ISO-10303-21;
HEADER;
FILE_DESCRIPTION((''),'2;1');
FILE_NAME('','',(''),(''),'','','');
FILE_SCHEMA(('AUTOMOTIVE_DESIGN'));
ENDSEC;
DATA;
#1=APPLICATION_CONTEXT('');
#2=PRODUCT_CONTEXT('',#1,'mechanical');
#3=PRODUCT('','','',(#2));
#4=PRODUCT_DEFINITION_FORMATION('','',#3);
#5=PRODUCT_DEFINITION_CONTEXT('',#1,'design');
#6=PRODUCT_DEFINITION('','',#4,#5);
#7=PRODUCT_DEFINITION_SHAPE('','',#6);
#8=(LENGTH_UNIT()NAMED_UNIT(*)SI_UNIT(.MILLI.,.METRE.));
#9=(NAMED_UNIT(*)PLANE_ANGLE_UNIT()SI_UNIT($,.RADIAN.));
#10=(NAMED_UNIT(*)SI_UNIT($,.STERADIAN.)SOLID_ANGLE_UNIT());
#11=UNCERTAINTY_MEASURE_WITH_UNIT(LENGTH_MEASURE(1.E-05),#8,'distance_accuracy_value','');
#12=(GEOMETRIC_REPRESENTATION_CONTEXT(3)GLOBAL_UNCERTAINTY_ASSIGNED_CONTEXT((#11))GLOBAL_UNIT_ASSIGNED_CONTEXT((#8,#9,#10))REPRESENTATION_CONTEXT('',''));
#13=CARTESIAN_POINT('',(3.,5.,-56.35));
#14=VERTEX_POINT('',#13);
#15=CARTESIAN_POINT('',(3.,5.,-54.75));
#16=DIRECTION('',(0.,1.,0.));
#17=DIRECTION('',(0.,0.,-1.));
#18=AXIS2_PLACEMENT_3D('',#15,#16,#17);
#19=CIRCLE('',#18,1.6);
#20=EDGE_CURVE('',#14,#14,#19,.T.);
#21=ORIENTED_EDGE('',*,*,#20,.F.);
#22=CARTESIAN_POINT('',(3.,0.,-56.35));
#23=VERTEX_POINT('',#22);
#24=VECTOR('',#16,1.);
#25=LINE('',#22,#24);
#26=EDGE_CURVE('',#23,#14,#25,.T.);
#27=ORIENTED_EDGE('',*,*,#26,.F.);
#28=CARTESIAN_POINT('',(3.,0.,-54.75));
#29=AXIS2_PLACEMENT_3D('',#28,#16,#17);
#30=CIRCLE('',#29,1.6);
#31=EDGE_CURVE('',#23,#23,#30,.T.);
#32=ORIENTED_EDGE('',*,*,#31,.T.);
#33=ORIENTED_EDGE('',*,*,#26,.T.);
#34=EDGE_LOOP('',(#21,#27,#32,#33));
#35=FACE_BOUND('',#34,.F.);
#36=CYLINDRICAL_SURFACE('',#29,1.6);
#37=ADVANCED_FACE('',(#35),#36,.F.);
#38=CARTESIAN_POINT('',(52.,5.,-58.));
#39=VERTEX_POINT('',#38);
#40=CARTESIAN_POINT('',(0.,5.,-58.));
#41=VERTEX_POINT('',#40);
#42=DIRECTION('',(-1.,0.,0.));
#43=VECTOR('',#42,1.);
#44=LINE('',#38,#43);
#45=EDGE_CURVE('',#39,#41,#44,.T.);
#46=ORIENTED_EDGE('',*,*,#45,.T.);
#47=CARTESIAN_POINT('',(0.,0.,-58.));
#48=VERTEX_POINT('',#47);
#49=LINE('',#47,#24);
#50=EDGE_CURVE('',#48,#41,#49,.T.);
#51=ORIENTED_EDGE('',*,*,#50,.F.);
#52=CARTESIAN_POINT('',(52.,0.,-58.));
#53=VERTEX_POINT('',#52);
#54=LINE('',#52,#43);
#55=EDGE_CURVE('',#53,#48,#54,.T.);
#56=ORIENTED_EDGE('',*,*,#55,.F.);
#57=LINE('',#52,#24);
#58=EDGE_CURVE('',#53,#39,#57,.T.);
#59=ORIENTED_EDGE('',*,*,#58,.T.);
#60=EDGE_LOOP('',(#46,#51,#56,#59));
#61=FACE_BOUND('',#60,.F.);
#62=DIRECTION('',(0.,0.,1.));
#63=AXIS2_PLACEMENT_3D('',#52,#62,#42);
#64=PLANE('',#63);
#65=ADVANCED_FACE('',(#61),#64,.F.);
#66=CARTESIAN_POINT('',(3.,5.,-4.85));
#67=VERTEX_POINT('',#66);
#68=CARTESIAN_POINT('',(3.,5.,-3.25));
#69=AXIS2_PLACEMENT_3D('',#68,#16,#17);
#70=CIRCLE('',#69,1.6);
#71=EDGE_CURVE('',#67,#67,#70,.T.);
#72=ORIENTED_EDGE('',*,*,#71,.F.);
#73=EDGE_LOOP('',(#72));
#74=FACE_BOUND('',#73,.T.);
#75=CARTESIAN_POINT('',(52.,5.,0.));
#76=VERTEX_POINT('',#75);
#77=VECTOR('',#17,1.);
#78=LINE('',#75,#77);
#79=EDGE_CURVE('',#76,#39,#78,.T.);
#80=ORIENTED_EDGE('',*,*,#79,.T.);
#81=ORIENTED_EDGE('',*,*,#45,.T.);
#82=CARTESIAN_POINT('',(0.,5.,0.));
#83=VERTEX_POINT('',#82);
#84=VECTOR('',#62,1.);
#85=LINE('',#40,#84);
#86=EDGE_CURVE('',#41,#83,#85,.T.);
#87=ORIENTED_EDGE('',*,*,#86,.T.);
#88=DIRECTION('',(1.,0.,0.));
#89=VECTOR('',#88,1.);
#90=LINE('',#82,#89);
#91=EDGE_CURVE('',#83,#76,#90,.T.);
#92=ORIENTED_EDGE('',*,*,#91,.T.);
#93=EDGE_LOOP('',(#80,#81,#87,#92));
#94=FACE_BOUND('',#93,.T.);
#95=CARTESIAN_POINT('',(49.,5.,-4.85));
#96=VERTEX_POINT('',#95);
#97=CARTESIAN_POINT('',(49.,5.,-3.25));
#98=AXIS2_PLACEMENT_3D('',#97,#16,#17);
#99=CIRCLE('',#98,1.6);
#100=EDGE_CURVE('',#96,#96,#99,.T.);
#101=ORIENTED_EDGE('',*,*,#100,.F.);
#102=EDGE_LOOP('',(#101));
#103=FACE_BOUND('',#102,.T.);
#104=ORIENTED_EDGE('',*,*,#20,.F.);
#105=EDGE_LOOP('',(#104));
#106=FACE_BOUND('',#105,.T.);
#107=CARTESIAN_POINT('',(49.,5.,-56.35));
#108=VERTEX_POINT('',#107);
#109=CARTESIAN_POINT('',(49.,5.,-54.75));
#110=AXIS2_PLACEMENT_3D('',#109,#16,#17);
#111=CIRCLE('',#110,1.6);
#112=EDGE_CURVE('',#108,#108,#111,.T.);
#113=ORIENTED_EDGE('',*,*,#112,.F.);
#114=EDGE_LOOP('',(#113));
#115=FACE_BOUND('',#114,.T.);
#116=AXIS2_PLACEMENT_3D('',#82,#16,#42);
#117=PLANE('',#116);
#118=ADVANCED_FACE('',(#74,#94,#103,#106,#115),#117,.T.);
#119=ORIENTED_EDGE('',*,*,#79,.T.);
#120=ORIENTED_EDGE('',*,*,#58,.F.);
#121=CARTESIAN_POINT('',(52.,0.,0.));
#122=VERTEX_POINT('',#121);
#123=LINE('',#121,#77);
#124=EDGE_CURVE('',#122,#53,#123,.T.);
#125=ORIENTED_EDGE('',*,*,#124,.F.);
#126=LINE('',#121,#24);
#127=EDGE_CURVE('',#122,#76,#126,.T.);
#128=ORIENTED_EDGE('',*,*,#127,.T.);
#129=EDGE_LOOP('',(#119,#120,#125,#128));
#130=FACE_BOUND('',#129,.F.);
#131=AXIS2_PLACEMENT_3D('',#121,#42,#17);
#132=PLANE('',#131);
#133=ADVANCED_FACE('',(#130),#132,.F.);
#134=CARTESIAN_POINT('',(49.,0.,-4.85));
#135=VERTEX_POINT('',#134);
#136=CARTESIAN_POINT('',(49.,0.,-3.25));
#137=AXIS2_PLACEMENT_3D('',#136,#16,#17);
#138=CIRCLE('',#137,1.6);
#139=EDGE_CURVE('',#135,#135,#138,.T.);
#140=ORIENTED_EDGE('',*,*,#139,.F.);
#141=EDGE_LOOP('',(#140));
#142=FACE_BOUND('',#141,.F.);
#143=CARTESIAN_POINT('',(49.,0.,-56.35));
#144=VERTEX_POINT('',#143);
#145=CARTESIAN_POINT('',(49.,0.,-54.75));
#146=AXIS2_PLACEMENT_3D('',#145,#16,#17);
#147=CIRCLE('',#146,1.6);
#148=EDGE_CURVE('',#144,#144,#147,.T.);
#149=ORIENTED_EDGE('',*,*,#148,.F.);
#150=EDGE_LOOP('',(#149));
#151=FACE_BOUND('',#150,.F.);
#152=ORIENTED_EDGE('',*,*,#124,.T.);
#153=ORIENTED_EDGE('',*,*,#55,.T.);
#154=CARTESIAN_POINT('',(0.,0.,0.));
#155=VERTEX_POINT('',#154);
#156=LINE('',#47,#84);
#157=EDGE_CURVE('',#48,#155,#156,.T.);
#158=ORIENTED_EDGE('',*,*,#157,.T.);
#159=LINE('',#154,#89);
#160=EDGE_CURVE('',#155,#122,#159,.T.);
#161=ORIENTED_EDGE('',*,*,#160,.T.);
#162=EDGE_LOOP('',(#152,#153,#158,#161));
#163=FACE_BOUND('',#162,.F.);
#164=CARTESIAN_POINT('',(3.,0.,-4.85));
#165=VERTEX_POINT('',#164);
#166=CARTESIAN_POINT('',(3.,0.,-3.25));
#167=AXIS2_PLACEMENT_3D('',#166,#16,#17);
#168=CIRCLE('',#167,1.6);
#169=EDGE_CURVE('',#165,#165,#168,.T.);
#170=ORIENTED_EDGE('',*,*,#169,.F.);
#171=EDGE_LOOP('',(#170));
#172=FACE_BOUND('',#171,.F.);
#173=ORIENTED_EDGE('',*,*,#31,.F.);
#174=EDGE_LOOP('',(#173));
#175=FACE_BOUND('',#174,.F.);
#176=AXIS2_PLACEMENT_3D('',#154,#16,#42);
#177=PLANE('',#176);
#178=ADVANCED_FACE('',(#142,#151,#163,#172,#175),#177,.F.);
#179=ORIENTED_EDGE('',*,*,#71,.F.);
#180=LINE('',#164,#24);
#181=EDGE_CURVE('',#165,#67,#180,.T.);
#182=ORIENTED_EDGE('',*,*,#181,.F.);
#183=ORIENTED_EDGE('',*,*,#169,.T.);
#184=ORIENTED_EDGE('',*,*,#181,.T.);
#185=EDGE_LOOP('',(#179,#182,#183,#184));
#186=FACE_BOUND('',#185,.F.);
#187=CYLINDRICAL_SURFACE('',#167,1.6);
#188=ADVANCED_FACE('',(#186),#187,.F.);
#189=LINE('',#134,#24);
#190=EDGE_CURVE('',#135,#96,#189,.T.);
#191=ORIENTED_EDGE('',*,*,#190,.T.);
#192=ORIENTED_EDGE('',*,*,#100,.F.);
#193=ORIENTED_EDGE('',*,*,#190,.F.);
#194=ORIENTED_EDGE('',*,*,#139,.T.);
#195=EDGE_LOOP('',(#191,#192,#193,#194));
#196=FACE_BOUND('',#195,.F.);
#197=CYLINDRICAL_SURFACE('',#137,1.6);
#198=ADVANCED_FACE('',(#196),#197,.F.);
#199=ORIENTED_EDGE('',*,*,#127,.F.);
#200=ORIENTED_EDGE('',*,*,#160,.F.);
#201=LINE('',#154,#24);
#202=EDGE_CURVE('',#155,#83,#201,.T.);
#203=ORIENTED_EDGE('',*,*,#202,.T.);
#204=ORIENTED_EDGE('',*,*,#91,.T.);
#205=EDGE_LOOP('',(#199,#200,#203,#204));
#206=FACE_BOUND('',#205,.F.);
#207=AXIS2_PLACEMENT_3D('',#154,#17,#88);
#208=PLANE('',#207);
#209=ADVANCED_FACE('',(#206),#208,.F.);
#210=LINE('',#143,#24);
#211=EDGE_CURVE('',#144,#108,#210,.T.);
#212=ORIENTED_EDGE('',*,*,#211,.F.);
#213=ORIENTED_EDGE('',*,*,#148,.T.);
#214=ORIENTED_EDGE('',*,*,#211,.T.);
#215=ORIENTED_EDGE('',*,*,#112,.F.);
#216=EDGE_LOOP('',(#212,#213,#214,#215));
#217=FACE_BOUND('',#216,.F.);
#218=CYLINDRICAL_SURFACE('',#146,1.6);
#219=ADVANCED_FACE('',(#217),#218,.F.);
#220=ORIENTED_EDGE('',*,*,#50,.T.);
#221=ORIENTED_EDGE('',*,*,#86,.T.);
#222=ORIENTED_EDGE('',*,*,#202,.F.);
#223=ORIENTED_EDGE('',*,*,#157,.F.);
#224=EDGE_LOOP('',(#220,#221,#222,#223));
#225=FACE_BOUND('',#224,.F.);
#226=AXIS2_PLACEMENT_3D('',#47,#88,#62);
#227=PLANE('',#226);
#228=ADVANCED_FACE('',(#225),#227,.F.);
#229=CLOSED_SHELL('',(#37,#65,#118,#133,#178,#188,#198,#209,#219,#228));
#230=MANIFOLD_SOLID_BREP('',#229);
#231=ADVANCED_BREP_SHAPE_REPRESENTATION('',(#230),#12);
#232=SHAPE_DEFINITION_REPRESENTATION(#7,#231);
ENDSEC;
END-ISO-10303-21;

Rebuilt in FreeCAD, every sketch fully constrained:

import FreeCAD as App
import Part
import Sketcher
from FreeCAD import Vector
Q = App.Units.Quantity

doc = App.newDocument("Part")
body = doc.addObject("PartDesign::Body", "Body")

sketch1 = doc.addObject("Sketcher::SketchObject", "Sketch")
body.addObject(sketch1)
sketch1.AttachmentSupport = (doc.XZ_Plane, [""])
sketch1.MapMode = "FlatFace"
sketch1.addGeometry([
    Part.LineSegment(Vector(0, -58, 0), Vector(0, 0, 0)),
    Part.LineSegment(Vector(0, 0, 0), Vector(52, 0, 0)),
    Part.LineSegment(Vector(52, 0, 0), Vector(52, -58, 0)),
    Part.LineSegment(Vector(52, -58, 0), Vector(0, -58, 0)),
], False)
sketch1.addConstraint([
    Sketcher.Constraint("Coincident", 0, 2, 1, 1),
    Sketcher.Constraint("Coincident", 1, 2, 2, 1),
    Sketcher.Constraint("Coincident", 2, 2, 3, 1),
    Sketcher.Constraint("Coincident", 3, 2, 0, 1),
    Sketcher.Constraint("Vertical", 0),
    Sketcher.Constraint("Horizontal", 1),
    Sketcher.Constraint("Vertical", 2),
    Sketcher.Constraint("Horizontal", 3),
    Sketcher.Constraint("Coincident", 0, 2, -1, 1),
    Sketcher.Constraint("DistanceX", 1, 1, 1, 2, Q("52 mm")),
    Sketcher.Constraint("DistanceY", 0, 1, 0, 2, Q("58 mm")),
])
pad1 = doc.addObject("PartDesign::Pad", "Pad")
body.addObject(pad1)
pad1.Profile = sketch1
pad1.Length = 5
pad1.Reversed = True

sketch2 = doc.addObject("Sketcher::SketchObject", "Sketch001")
body.addObject(sketch2)
sketch2.AttachmentSupport = (doc.XZ_Plane, [""])
sketch2.MapMode = "FlatFace"
sketch2.addGeometry([
    Part.Circle(Vector(3, -54.8, 0), Vector(0, 0, 1), 1.6),
    Part.Circle(Vector(3, -3.2, 0), Vector(0, 0, 1), 1.6),
    Part.Circle(Vector(49, -3.2, 0), Vector(0, 0, 1), 1.6),
    Part.Circle(Vector(49, -54.8, 0), Vector(0, 0, 1), 1.6),
], False)
sketch2.addConstraint([
    Sketcher.Constraint("Equal", 0, 1),
    Sketcher.Constraint("Equal", 1, 2),
    Sketcher.Constraint("Equal", 2, 3),
    Sketcher.Constraint("Horizontal", 1, 3, 2, 3),
    Sketcher.Constraint("Horizontal", 0, 3, 3, 3),
    Sketcher.Constraint("Vertical", 0, 3, 1, 3),
    Sketcher.Constraint("Vertical", 2, 3, 3, 3),
    Sketcher.Constraint("Diameter", 0, Q("3.2 mm")),
    Sketcher.Constraint("DistanceX", -1, 1, 0, 3, Q("3 mm")),
    Sketcher.Constraint("DistanceX", -1, 1, 2, 3, Q("49 mm")),
    Sketcher.Constraint("DistanceY", 0, 3, 1, 3, Q("51.5 mm")),
    Sketcher.Constraint("DistanceY", 0, 3, -1, 1, Q("54.75 mm")),
])
doc.recompute()
hole = doc.addObject("PartDesign::Hole", "Hole")
body.addObject(hole)
hole.Profile = sketch2
hole.ThreadType = "None"
hole.Diameter = 3.2
hole.DepthType = "ThroughAll"

doc.recompute()
